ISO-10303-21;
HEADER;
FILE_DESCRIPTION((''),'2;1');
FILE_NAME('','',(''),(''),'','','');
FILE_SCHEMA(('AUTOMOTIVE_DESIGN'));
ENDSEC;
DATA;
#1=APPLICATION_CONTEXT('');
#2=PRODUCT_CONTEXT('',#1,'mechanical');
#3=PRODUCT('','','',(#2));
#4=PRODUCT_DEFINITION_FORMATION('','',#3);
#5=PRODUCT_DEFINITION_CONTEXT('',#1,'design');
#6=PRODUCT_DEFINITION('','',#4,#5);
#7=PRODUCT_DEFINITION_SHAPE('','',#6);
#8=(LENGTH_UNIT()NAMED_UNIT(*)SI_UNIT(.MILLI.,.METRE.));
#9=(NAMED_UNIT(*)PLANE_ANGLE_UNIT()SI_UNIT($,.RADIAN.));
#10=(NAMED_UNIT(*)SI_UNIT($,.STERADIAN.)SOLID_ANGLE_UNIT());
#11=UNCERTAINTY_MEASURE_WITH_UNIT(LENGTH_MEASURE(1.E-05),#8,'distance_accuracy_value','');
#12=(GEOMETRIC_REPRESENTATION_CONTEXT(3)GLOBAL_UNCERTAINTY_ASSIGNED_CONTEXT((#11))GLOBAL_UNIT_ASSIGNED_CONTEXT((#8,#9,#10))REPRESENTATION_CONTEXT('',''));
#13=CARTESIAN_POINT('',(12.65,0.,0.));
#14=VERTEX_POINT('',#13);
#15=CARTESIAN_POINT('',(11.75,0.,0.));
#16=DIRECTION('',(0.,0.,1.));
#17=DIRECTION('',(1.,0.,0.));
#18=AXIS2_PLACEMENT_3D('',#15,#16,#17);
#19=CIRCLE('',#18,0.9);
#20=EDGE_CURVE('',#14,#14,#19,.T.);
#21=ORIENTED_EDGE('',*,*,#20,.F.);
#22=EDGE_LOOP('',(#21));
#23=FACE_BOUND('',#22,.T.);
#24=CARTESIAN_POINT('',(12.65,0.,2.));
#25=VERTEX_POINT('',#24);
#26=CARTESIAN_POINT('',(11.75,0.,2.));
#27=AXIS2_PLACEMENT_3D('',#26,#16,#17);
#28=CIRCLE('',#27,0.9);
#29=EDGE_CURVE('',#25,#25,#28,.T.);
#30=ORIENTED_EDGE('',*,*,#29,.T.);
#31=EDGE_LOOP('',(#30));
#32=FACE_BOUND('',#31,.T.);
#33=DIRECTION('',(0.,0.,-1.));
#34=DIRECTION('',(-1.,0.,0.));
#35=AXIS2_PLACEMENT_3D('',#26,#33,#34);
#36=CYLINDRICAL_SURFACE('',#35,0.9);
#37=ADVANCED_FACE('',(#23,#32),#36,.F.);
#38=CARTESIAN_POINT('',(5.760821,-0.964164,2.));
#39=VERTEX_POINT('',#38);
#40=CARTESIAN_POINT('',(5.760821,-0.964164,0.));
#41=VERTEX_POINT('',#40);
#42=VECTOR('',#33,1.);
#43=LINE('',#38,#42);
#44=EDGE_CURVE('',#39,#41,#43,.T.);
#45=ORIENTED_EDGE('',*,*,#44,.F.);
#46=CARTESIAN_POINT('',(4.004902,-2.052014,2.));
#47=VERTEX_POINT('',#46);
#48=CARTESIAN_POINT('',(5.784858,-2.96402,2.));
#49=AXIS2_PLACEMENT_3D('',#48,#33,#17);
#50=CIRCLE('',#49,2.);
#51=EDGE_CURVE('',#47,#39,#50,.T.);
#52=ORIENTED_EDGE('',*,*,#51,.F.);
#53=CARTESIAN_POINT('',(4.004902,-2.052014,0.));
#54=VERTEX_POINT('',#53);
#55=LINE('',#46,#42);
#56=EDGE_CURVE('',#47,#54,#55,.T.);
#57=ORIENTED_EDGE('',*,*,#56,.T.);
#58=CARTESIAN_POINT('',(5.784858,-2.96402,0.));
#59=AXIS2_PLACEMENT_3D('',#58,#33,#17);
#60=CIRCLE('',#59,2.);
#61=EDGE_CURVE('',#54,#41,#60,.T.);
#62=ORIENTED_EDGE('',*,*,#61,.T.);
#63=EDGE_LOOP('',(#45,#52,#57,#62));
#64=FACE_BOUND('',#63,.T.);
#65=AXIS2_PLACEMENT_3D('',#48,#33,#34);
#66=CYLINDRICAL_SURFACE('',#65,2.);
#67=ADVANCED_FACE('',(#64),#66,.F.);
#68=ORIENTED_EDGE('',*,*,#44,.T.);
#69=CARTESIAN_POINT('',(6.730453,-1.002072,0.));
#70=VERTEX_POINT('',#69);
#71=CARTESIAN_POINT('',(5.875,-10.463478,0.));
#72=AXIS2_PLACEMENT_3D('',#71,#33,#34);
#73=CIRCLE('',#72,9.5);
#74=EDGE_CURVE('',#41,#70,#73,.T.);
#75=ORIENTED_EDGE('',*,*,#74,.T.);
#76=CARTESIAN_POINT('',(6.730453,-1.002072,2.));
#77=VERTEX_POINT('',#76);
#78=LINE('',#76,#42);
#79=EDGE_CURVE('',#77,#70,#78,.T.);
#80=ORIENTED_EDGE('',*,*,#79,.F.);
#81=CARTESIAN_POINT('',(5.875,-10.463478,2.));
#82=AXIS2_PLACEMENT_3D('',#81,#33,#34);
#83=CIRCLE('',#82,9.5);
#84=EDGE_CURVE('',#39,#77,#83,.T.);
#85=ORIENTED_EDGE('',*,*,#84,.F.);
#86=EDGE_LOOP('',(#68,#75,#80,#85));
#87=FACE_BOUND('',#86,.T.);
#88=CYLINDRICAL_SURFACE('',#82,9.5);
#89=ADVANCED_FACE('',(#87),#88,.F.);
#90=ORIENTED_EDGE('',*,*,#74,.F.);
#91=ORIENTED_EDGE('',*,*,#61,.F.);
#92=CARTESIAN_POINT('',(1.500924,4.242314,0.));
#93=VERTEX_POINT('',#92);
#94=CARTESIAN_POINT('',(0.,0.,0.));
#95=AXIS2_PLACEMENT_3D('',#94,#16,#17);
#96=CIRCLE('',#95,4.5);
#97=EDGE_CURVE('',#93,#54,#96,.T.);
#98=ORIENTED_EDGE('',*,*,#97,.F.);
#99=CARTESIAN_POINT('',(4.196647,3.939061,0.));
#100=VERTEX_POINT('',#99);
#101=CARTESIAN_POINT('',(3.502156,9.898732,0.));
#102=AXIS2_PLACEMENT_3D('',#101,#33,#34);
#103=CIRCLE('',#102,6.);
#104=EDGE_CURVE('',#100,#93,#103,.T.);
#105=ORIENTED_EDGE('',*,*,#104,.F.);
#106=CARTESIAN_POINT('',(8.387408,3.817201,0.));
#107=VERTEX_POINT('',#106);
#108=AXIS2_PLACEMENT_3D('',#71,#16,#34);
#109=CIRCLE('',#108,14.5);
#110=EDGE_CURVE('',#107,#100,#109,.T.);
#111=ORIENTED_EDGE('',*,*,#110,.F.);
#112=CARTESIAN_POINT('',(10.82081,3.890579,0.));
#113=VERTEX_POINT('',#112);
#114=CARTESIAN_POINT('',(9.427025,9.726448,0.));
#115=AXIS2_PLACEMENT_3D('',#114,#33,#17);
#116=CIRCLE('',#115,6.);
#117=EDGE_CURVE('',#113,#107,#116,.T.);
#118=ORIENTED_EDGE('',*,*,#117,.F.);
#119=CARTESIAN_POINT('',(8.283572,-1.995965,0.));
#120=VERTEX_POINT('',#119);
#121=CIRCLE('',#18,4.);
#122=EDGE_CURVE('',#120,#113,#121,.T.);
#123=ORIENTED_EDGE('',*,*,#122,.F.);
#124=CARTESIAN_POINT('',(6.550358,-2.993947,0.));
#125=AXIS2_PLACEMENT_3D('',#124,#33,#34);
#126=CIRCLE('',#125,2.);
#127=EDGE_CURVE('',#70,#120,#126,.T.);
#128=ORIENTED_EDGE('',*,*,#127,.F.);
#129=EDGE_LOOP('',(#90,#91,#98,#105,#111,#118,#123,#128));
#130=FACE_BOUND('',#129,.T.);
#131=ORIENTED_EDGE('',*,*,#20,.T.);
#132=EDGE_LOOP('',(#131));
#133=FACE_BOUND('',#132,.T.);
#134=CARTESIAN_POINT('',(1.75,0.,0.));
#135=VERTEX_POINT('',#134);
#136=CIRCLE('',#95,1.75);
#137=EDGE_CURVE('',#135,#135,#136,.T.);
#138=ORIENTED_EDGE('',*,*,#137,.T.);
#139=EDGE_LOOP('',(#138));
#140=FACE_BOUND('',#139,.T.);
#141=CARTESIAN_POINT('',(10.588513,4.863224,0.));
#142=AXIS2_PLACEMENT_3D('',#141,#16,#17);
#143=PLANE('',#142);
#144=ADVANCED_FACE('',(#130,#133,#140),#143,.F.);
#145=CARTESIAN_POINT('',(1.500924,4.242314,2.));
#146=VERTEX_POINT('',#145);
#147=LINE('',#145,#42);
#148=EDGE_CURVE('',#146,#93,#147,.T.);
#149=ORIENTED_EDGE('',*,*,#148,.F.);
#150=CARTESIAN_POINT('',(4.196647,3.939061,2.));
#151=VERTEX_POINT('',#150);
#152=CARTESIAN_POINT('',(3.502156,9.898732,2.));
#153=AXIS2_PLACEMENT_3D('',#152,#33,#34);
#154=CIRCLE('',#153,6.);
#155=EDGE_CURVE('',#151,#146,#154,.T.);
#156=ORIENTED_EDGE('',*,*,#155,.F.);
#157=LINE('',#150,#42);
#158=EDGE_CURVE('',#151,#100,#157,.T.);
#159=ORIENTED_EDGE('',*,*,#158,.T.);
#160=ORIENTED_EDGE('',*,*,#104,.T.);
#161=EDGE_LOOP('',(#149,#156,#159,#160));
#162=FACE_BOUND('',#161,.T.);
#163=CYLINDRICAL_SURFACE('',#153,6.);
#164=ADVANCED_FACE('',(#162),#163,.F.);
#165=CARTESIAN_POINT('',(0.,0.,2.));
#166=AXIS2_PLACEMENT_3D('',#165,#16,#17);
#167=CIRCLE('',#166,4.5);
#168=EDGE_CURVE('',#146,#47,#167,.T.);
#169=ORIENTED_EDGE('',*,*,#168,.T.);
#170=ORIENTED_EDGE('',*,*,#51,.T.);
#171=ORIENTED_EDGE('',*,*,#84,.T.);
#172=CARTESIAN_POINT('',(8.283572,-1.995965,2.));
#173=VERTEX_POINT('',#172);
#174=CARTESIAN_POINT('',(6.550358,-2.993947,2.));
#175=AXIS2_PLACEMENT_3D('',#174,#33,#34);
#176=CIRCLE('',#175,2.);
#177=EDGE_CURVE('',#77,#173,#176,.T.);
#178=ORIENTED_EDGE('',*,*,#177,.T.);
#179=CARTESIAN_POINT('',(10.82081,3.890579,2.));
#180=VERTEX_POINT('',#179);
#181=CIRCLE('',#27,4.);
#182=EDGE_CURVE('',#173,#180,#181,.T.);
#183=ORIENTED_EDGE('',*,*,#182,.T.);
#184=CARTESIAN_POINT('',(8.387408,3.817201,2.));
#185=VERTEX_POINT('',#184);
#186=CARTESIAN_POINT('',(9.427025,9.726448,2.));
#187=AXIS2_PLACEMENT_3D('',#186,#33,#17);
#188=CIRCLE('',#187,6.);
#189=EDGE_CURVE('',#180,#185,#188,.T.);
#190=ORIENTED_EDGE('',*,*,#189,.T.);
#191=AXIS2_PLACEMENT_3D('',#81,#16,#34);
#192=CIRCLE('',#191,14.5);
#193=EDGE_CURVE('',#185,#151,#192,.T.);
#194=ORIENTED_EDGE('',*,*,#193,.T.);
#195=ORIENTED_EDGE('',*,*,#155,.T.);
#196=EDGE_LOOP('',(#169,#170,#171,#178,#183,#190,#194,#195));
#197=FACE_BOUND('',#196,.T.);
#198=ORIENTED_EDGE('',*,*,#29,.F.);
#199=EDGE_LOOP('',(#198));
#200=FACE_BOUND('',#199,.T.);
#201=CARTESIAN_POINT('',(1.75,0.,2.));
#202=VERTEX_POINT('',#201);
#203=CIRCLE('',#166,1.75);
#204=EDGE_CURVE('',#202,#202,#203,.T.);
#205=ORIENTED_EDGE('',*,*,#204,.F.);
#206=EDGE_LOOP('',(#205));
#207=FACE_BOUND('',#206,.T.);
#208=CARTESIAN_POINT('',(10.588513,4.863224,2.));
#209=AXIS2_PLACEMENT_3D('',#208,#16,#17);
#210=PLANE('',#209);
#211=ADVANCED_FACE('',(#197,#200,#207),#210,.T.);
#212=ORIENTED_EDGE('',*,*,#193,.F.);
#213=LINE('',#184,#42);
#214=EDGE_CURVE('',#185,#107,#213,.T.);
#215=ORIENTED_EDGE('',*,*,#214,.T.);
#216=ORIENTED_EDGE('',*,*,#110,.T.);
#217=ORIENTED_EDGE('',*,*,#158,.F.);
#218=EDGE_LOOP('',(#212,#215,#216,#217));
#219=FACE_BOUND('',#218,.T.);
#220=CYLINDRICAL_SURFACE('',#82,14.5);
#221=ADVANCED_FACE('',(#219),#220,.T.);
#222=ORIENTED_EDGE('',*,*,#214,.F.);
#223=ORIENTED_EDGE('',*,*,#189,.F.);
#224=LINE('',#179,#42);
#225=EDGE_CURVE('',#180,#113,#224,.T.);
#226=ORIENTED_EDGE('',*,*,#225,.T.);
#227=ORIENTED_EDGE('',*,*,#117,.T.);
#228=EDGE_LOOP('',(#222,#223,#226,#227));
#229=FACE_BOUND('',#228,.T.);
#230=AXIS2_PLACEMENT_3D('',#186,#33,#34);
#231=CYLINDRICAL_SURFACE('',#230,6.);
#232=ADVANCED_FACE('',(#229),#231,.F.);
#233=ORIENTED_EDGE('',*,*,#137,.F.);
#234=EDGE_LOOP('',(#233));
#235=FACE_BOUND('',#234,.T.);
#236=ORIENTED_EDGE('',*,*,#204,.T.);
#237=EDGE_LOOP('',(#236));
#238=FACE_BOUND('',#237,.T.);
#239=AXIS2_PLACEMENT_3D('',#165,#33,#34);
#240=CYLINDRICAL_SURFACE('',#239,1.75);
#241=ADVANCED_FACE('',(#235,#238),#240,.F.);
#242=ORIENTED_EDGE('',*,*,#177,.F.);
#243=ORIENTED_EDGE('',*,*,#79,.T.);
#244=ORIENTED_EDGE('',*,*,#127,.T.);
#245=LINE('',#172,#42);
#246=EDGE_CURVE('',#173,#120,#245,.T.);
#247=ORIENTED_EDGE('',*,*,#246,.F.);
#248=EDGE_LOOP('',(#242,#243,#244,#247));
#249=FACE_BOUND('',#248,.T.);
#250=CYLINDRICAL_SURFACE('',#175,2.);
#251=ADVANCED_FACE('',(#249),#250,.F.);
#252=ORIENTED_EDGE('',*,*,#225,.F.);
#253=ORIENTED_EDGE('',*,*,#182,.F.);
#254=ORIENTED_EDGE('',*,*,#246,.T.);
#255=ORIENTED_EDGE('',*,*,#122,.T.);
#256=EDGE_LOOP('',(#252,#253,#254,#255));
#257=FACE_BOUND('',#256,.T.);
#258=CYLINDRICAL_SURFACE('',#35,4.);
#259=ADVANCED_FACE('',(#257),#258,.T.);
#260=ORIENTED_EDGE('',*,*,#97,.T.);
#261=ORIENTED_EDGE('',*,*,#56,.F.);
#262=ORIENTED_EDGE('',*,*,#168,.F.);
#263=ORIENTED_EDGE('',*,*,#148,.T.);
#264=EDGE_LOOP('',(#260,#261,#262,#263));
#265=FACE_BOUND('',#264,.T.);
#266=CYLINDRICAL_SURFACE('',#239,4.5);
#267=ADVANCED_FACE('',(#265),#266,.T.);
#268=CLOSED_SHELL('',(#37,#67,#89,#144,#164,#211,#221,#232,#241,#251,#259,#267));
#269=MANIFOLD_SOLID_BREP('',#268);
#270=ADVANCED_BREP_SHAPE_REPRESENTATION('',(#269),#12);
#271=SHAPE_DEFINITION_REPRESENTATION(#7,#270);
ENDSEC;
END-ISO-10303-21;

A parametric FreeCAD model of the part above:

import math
import FreeCAD as App
import Part
import Sketcher
from FreeCAD import Vector
Q = App.Units.Quantity

doc = App.newDocument("Part")
body = doc.addObject("PartDesign::Body", "Body")

# Sketch on XY plane
sketch1 = body.newObject("Sketcher::SketchObject", "Sketch")
sketch1.AttachmentSupport = (doc.getObject("XY_Plane"), [""])
sketch1.MapMode = "FlatFace"
sketch1.addGeometry([
    Part.ArcOfCircle(Part.Circle(Vector(0, 0, 0), Vector(0, 0, 1), 4.5), math.radians(70.516298), math.radians(332.870509)),  # 0
    Part.ArcOfCircle(Part.Circle(Vector(5.784858, -2.96402, 0), Vector(0, 0, 1), 2), math.radians(90.688648), math.radians(152.870509)),  # 1
    Part.ArcOfCircle(Part.Circle(Vector(5.875, -10.463478, 0), Vector(0, 0, 1), 9.5), math.radians(84.833649), math.radians(90.688648)),  # 2
    Part.ArcOfCircle(Part.Circle(Vector(6.550358, -2.993947, 0), Vector(0, 0, 1), 2), math.radians(29.933281), math.radians(84.833649)),  # 3
    Part.ArcOfCircle(Part.Circle(Vector(11.75, 0, 0), Vector(0, 0, 1), 4), math.radians(-150.066719), math.radians(103.43237)),  # 4
    Part.ArcOfCircle(Part.Circle(Vector(9.427025, 9.726448, 0), Vector(0, 0, 1), 6), math.radians(-99.977971), math.radians(-76.56763)),  # 5
    Part.ArcOfCircle(Part.Circle(Vector(5.875, -10.463478, 0), Vector(0, 0, 1), 14.5), math.radians(80.022029), math.radians(96.646797)),  # 6
    Part.ArcOfCircle(Part.Circle(Vector(3.502156, 9.898732, 0), Vector(0, 0, 1), 6), math.radians(-109.483702), math.radians(-83.353203)),  # 7
    Part.Circle(Vector(0, 0, 0), Vector(0, 0, 1), 1.75),  # 8
    Part.Circle(Vector(11.75, 0, 0), Vector(0, 0, 1), 0.9),  # 9
], False)
sketch1.addConstraint([
    Sketcher.Constraint("Tangent", 0, 2, 1, 2),
    Sketcher.Constraint("Tangent", 1, 1, 2, 2),
    Sketcher.Constraint("Tangent", 2, 1, 3, 2),
    Sketcher.Constraint("Tangent", 3, 1, 4, 1),
    Sketcher.Constraint("Tangent", 4, 2, 5, 2),
    Sketcher.Constraint("Tangent", 5, 1, 6, 1),
    Sketcher.Constraint("Tangent", 6, 2, 7, 2),
    Sketcher.Constraint("Tangent", 7, 1, 0, 1),
    Sketcher.Constraint("Coincident", 0, 3, -1, 1),
    Sketcher.Constraint("Coincident", 8, 3, -1, 1),
    Sketcher.Constraint("Coincident", 6, 3, 2, 3),
    Sketcher.Constraint("Coincident", 9, 3, 4, 3),
    Sketcher.Constraint("Equal", 1, 3),
    Sketcher.Constraint("Equal", 5, 7),
    Sketcher.Constraint("PointOnObject", 4, 3, -1),
    Sketcher.Constraint("Radius", 1, Q("2 mm")),
    Sketcher.Constraint("Radius", 4, Q("4 mm")),
    Sketcher.Constraint("Radius", 5, Q("6 mm")),
    Sketcher.Constraint("Diameter", 8, Q("3.5 mm")),
    Sketcher.Constraint("Diameter", 9, Q("1.8 mm")),
    Sketcher.Constraint("Radius", 0, Q("4.5 mm")),
    Sketcher.Constraint("Radius", 2, Q("9.5 mm")),
    Sketcher.Constraint("Radius", 6, Q("14.5 mm")),
    Sketcher.Constraint("DistanceX", -1, 1, 4, 3, Q("11.75 mm")),
    Sketcher.Constraint("DistanceX", -1, 1, 2, 3, Q("5.875 mm")),
    Sketcher.Constraint("DistanceX", -1, 1, 0, 2, Q("4.004902 mm")),
])
pad1 = body.newObject("PartDesign::Pad", "Pad")
pad1.Profile = sketch1
pad1.Length = 2

doc.recompute()
